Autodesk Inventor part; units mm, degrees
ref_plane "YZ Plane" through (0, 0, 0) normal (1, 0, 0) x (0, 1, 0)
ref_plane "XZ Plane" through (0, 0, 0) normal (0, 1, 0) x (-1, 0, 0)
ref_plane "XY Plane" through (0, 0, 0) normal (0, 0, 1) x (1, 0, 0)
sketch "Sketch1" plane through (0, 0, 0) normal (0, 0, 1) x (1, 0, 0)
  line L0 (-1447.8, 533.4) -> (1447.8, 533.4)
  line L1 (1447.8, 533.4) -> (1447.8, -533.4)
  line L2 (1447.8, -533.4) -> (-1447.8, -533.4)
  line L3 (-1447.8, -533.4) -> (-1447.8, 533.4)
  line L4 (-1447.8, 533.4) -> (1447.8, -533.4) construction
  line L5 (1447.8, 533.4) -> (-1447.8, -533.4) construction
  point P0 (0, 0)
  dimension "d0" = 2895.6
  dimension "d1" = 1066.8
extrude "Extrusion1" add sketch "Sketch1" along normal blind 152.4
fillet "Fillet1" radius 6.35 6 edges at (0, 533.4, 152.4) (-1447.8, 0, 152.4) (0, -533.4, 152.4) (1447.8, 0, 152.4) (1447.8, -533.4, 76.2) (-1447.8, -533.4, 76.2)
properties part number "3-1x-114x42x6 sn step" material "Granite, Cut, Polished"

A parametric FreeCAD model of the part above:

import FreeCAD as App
import Part
import Sketcher
from FreeCAD import Vector
Q = App.Units.Quantity


def edges_at(feature, points):
    """Names of the edges that pass closest to the given points."""
    edges = feature.Shape.Edges
    near = lambda p: min(range(len(edges)), key=lambda i: edges[i].distToShape(Part.Vertex(*p))[0])
    return sorted({f"Edge{near(p) + 1}" for p in points})


def add_polygon(sketch, points):
    """Adds a closed chain of lines whose ends are joined by coincident constraints."""
    first, n = sketch.GeometryCount, len(points)
    for a, b in zip(points, points[1:] + points[:1]):
        sketch.addGeometry(Part.LineSegment(App.Vector(*a, 0), App.Vector(*b, 0)), False)
    for i in range(n):
        sketch.addConstraint(Sketcher.Constraint("Coincident", first + i, 2, first + (i + 1) % n, 1))

doc = App.newDocument("Part")
params = doc.addObject("Spreadsheet::Sheet", "Params")
for row, (alias, value) in enumerate([
    ("sketch1_width", "114 in"),
    ("sketch1_height", "42 in"),
    ("pad1_length", "6 in"),
    ("fillet_radius", "0.25 in"),
], start=1):
    params.set(f"A{row}", alias)
    params.set(f"B{row}", "=" + value)
    params.setAlias(f"B{row}", alias)

body = doc.addObject("PartDesign::Body", "Body")

# Sketch on XY plane
sketch1 = doc.addObject("Sketcher::SketchObject", "Sketch")
body.addObject(sketch1)
sketch1.AttachmentSupport = (doc.XY_Plane, [""])
sketch1.MapMode = "FlatFace"
add_polygon(sketch1, [(1448, 533), (-1448, 533), (-1448, -533), (1448, -533)])  # lines 0-3
sketch1.addConstraint([
    Sketcher.Constraint("Horizontal", 0),
    Sketcher.Constraint("Vertical", 1),
    Sketcher.Constraint("Horizontal", 2),
    Sketcher.Constraint("Vertical", 3),
    Sketcher.Constraint("Symmetric", 0, 2, 2, 2, -1, 1),
    Sketcher.Constraint("DistanceX", 0, 2, 0, 1, Q("114 in")),
    Sketcher.Constraint("DistanceY", 1, 2, 1, 1, Q("42 in")),
])
sketch1.setExpression("Constraints[9]", "Params.sketch1_width")
sketch1.setExpression("Constraints[10]", "Params.sketch1_height")
pad1 = doc.addObject("PartDesign::Pad", "Pad")
body.addObject(pad1)
pad1.Profile = sketch1
pad1.setExpression("Length", "Params.pad1_length")
doc.recompute()

fillet = doc.addObject("PartDesign::Fillet", "Fillet")
body.addObject(fillet)
fillet.Base = (pad1, edges_at(pad1, [
    (0, 533.4, 152.4),
    (-1447.8, 0, 152.4),
    (0, -533.4, 152.4),
    (1447.8, 0, 152.4),
    (1447.8, -533.4, 76.2),
    (-1447.8, -533.4, 76.2),
]))
fillet.setExpression("Radius", "Params.fillet_radius")

doc.recompute()
